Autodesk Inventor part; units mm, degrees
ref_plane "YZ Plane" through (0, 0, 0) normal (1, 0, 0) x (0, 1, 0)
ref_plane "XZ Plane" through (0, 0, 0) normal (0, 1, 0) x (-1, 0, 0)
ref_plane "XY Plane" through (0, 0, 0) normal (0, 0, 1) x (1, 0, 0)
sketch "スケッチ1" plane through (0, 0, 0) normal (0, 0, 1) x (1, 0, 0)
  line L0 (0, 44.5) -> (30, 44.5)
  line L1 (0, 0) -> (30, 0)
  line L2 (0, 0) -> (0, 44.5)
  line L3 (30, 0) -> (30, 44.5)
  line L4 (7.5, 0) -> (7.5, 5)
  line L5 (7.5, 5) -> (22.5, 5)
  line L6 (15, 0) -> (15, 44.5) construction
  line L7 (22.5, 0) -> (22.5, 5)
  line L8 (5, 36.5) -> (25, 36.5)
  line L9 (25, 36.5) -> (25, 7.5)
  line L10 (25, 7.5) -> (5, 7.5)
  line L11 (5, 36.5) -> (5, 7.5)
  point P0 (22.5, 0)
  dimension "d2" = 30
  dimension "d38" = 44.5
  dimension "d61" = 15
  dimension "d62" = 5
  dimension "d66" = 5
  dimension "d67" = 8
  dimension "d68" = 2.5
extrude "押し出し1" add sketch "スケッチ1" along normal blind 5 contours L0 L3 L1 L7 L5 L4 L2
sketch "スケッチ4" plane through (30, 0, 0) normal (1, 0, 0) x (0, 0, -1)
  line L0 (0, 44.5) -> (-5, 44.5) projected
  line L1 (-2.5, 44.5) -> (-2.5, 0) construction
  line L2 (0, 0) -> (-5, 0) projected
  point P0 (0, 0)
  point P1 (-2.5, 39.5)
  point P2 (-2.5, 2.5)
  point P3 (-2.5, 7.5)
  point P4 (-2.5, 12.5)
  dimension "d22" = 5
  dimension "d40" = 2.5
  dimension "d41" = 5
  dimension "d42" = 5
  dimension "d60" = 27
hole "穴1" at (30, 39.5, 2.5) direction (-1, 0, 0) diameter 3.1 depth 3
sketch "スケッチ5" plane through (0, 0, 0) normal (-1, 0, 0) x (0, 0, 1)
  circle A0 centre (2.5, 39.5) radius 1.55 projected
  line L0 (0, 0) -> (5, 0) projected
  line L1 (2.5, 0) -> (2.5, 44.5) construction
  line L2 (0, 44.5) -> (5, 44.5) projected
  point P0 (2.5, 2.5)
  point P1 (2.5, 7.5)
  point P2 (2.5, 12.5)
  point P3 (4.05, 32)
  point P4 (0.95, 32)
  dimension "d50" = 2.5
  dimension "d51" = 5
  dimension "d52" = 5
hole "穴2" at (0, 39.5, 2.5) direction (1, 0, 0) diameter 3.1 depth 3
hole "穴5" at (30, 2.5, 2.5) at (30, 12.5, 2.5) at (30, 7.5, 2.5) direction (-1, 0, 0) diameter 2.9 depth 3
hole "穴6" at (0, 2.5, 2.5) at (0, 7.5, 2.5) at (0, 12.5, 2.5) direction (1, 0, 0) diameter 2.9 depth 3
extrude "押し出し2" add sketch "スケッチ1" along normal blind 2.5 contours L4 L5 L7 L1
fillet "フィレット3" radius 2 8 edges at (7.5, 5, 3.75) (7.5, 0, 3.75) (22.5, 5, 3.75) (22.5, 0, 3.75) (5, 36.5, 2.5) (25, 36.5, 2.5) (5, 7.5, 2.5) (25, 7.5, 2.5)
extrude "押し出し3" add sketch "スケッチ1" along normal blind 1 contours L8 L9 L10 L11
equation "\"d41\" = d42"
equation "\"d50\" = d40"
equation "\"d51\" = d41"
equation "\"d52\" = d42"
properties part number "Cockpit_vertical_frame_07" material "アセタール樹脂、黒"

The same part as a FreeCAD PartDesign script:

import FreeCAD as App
import Part
import Sketcher


def edges_at(feature, points):
    """Names of the edges that pass closest to the given points."""
    edges = feature.Shape.Edges
    near = lambda p: min(range(len(edges)), key=lambda i: edges[i].distToShape(Part.Vertex(*p))[0])
    return sorted({f"Edge{near(p) + 1}" for p in points})


def add_polygon(sketch, points):
    """Adds a closed chain of lines whose ends are joined by coincident constraints."""
    first, n = sketch.GeometryCount, len(points)
    for a, b in zip(points, points[1:] + points[:1]):
        sketch.addGeometry(Part.LineSegment(App.Vector(*a, 0), App.Vector(*b, 0)), False)
    for i in range(n):
        sketch.addConstraint(Sketcher.Constraint("Coincident", first + i, 2, first + (i + 1) % n, 1))

doc = App.newDocument("Part")
body = doc.addObject("PartDesign::Body", "Body")

# Sketch on XY plane
sketch1 = body.newObject("Sketcher::SketchObject", "Sketch")
sketch1.AttachmentSupport = (doc.getObject("XY_Plane"), [""])
sketch1.MapMode = "FlatFace"
add_polygon(sketch1, [(30, 44), (0, 44), (0, 0), (8, 0), (8, 5), (22, 5), (22, 0), (30, 0)])  # lines 0-7
add_polygon(sketch1, [(5, 8), (5, 36), (25, 36), (25, 8)])  # lines 8-11
sketch1.addConstraint([
    Sketcher.Constraint("Horizontal", 0),
    Sketcher.Constraint("Vertical", 1),
    Sketcher.Constraint("Horizontal", 2),
    Sketcher.Constraint("Vertical", 3),
    Sketcher.Constraint("Horizontal", 4),
    Sketcher.Constraint("Vertical", 5),
    Sketcher.Constraint("Horizontal", 6),
    Sketcher.Constraint("Vertical", 7),
    Sketcher.Constraint("Vertical", 8),
    Sketcher.Constraint("Horizontal", 9),
    Sketcher.Constraint("Vertical", 10),
    Sketcher.Constraint("Horizontal", 11),
    Sketcher.Constraint("Coincident", 1, 2, -1, 1),
    Sketcher.Constraint("PointOnObject", 5, 2, -1),
    Sketcher.Constraint("Equal", 2, 6),
    Sketcher.Constraint("DistanceX", 0, 2, 0, 1, 30.0),
    Sketcher.Constraint("DistanceX", 4, 1, 4, 2, 15.0),
    Sketcher.Constraint("DistanceY", 3, 1, 3, 2, 5.0),
    Sketcher.Constraint("DistanceY", 1, 2, 1, 1, 44.5),
    Sketcher.Constraint("DistanceX", -1, 1, 8, 2, 5.0),
    Sketcher.Constraint("DistanceY", 8, 2, 0, 2, 8.0),
    Sketcher.Constraint("DistanceX", 9, 2, 7, 2, 5.0),
    Sketcher.Constraint("DistanceY", 4, 2, 10, 2, 2.5),
])
pad1 = body.newObject("PartDesign::Pad", "Pad")
pad1.Profile = sketch1
pad1.Length = 5

# Sketch on YZ plane
sketch2 = body.newObject("Sketcher::SketchObject", "Sketch001")
sketch2.AttachmentSupport = (doc.getObject("YZ_Plane"), [""])
sketch2.MapMode = "FlatFace"
sketch2.AttachmentOffset = App.Placement(App.Vector(0, 0, 30), App.Rotation())
sketch2.addGeometry(Part.Circle(App.Vector(39.5, 2.5, 0), App.Vector(0, 0, 1), 1.6), False)
sketch2.addConstraint([
    Sketcher.Constraint("Diameter", 0, 3.1),
    Sketcher.Constraint("DistanceX", -1, 1, 0, 3, 39.5),
    Sketcher.Constraint("DistanceY", -1, 1, 0, 3, 2.5),
])
doc.recompute()
hole = body.newObject("PartDesign::Hole", "Hole")
hole.Profile = sketch2
hole.ThreadType = "None"
hole.Diameter = 3.1
hole.DepthType = "Dimension"
hole.Depth = 3
hole.DrillPoint = "Flat"

# Sketch on YZ plane
sketch3 = body.newObject("Sketcher::SketchObject", "Sketch002")
sketch3.AttachmentSupport = (doc.getObject("YZ_Plane"), [""])
sketch3.MapMode = "FlatFace"
sketch3.addGeometry(Part.Circle(App.Vector(39.5, 2.5, 0), App.Vector(0, 0, 1), 1.6), False)
sketch3.addConstraint([
    Sketcher.Constraint("Diameter", 0, 3.1),
    Sketcher.Constraint("DistanceX", -1, 1, 0, 3, 39.5),
    Sketcher.Constraint("DistanceY", -1, 1, 0, 3, 2.5),
])
doc.recompute()
hole2 = body.newObject("PartDesign::Hole", "Hole001")
hole2.Profile = sketch3
hole2.ThreadType = "None"
hole2.Diameter = 3.1
hole2.DepthType = "Dimension"
hole2.Depth = 3
hole2.DrillPoint = "Flat"
hole2.Reversed = True

# Sketch on YZ plane
sketch4 = body.newObject("Sketcher::SketchObject", "Sketch003")
sketch4.AttachmentSupport = (doc.getObject("YZ_Plane"), [""])
sketch4.MapMode = "FlatFace"
sketch4.AttachmentOffset = App.Placement(App.Vector(0, 0, 30), App.Rotation())
sketch4.addGeometry([
    Part.Circle(App.Vector(2.5, 2.5, 0), App.Vector(0, 0, 1), 1.4),
    Part.Circle(App.Vector(12.5, 2.5, 0), App.Vector(0, 0, 1), 1.4),
    Part.Circle(App.Vector(7.5, 2.5, 0), App.Vector(0, 0, 1), 1.4),
], False)
sketch4.addConstraint([
    Sketcher.Constraint("Equal", 0, 1),
    Sketcher.Constraint("Equal", 1, 2),
    Sketcher.Constraint("Horizontal", 0, 3, 1, 3),
    Sketcher.Constraint("Horizontal", 1, 3, 2, 3),
    Sketcher.Constraint("Diameter", 0, 2.9),
    Sketcher.Constraint("DistanceX", 0, 3, 1, 3, 10.0),
    Sketcher.Constraint("DistanceX", 0, 3, 2, 3, 5.0),
    Sketcher.Constraint("DistanceX", -1, 1, 0, 3, 2.5),
    Sketcher.Constraint("DistanceY", -1, 1, 0, 3, 2.5),
])
doc.recompute()
hole3 = body.newObject("PartDesign::Hole", "Hole002")
hole3.Profile = sketch4
hole3.ThreadType = "None"
hole3.Diameter = 2.9
hole3.DepthType = "Dimension"
hole3.Depth = 3
hole3.DrillPoint = "Flat"

# Sketch on YZ plane
sketch5 = body.newObject("Sketcher::SketchObject", "Sketch004")
sketch5.AttachmentSupport = (doc.getObject("YZ_Plane"), [""])
sketch5.MapMode = "FlatFace"
sketch5.addGeometry([
    Part.Circle(App.Vector(2.5, 2.5, 0), App.Vector(0, 0, 1), 1.4),
    Part.Circle(App.Vector(7.5, 2.5, 0), App.Vector(0, 0, 1), 1.4),
    Part.Circle(App.Vector(12.5, 2.5, 0), App.Vector(0, 0, 1), 1.4),
], False)
sketch5.addConstraint([
    Sketcher.Constraint("Equal", 0, 1),
    Sketcher.Constraint("Equal", 1, 2),
    Sketcher.Constraint("Horizontal", 0, 3, 1, 3),
    Sketcher.Constraint("Horizontal", 1, 3, 2, 3),
    Sketcher.Constraint("Diameter", 0, 2.9),
    Sketcher.Constraint("DistanceX", 0, 3, 1, 3, 5.0),
    Sketcher.Constraint("DistanceX", 1, 3, 2, 3, 5.0),
    Sketcher.Constraint("DistanceX", -1, 1, 0, 3, 2.5),
    Sketcher.Constraint("DistanceY", -1, 1, 0, 3, 2.5),
])
doc.recompute()
hole4 = body.newObject("PartDesign::Hole", "Hole003")
hole4.Profile = sketch5
hole4.ThreadType = "None"
hole4.Diameter = 2.9
hole4.DepthType = "Dimension"
hole4.Depth = 3
hole4.DrillPoint = "Flat"
hole4.Reversed = True

# Sketch on XY plane
sketch6 = body.newObject("Sketcher::SketchObject", "Sketch005")
sketch6.AttachmentSupport = (doc.getObject("XY_Plane"), [""])
sketch6.MapMode = "FlatFace"
add_polygon(sketch6, [(8, 5), (8, 0), (22, 0), (22, 5)])  # lines 0-3
sketch6.addConstraint([
    Sketcher.Constraint("Vertical", 0),
    Sketcher.Constraint("Horizontal", 1),
    Sketcher.Constraint("Vertical", 2),
    Sketcher.Constraint("Horizontal", 3),
    Sketcher.Constraint("PointOnObject", 0, 2, -1),
    Sketcher.Constraint("DistanceX", 1, 1, 1, 2, 15.0),
    Sketcher.Constraint("DistanceY", 0, 2, 0, 1, 5.0),
    Sketcher.Constraint("DistanceX", -1, 1, 0, 2, 7.5),
])
pad2 = body.newObject("PartDesign::Pad", "Pad001")
pad2.Profile = sketch6
pad2.Length = 2.5
doc.recompute()

fillet = body.newObject("PartDesign::Fillet", "Fillet")
fillet.Base = (pad2, edges_at(pad2, [
    (7.5, 5, 3.75),
    (7.5, 0, 3.75),
    (22.5, 5, 3.75),
    (22.5, 0, 3.75),
    (5, 36.5, 2.5),
    (25, 36.5, 2.5),
    (5, 7.5, 2.5),
    (25, 7.5, 2.5),
]))
fillet.Radius = 2

# Sketch on XY plane
sketch7 = body.newObject("Sketcher::SketchObject", "Sketch006")
sketch7.AttachmentSupport = (doc.getObject("XY_Plane"), [""])
sketch7.MapMode = "FlatFace"
add_polygon(sketch7, [(25, 36), (5, 36), (5, 8), (25, 8)])  # lines 0-3
sketch7.addConstraint([
    Sketcher.Constraint("Horizontal", 0),
    Sketcher.Constraint("Vertical", 1),
    Sketcher.Constraint("Horizontal", 2),
    Sketcher.Constraint("Vertical", 3),
    Sketcher.Constraint("DistanceX", -1, 1, 0, 2, 5.0),
    Sketcher.Constraint("DistanceX", 0, 2, 0, 1, 20.0),
    Sketcher.Constraint("DistanceY", 1, 2, 1, 1, 29.0),
    Sketcher.Constraint("DistanceY", -1, 1, 0, 2, 36.5),
])
pad3 = body.newObject("PartDesign::Pad", "Pad002")
pad3.Profile = sketch7
pad3.Length = 1

doc.recompute()
